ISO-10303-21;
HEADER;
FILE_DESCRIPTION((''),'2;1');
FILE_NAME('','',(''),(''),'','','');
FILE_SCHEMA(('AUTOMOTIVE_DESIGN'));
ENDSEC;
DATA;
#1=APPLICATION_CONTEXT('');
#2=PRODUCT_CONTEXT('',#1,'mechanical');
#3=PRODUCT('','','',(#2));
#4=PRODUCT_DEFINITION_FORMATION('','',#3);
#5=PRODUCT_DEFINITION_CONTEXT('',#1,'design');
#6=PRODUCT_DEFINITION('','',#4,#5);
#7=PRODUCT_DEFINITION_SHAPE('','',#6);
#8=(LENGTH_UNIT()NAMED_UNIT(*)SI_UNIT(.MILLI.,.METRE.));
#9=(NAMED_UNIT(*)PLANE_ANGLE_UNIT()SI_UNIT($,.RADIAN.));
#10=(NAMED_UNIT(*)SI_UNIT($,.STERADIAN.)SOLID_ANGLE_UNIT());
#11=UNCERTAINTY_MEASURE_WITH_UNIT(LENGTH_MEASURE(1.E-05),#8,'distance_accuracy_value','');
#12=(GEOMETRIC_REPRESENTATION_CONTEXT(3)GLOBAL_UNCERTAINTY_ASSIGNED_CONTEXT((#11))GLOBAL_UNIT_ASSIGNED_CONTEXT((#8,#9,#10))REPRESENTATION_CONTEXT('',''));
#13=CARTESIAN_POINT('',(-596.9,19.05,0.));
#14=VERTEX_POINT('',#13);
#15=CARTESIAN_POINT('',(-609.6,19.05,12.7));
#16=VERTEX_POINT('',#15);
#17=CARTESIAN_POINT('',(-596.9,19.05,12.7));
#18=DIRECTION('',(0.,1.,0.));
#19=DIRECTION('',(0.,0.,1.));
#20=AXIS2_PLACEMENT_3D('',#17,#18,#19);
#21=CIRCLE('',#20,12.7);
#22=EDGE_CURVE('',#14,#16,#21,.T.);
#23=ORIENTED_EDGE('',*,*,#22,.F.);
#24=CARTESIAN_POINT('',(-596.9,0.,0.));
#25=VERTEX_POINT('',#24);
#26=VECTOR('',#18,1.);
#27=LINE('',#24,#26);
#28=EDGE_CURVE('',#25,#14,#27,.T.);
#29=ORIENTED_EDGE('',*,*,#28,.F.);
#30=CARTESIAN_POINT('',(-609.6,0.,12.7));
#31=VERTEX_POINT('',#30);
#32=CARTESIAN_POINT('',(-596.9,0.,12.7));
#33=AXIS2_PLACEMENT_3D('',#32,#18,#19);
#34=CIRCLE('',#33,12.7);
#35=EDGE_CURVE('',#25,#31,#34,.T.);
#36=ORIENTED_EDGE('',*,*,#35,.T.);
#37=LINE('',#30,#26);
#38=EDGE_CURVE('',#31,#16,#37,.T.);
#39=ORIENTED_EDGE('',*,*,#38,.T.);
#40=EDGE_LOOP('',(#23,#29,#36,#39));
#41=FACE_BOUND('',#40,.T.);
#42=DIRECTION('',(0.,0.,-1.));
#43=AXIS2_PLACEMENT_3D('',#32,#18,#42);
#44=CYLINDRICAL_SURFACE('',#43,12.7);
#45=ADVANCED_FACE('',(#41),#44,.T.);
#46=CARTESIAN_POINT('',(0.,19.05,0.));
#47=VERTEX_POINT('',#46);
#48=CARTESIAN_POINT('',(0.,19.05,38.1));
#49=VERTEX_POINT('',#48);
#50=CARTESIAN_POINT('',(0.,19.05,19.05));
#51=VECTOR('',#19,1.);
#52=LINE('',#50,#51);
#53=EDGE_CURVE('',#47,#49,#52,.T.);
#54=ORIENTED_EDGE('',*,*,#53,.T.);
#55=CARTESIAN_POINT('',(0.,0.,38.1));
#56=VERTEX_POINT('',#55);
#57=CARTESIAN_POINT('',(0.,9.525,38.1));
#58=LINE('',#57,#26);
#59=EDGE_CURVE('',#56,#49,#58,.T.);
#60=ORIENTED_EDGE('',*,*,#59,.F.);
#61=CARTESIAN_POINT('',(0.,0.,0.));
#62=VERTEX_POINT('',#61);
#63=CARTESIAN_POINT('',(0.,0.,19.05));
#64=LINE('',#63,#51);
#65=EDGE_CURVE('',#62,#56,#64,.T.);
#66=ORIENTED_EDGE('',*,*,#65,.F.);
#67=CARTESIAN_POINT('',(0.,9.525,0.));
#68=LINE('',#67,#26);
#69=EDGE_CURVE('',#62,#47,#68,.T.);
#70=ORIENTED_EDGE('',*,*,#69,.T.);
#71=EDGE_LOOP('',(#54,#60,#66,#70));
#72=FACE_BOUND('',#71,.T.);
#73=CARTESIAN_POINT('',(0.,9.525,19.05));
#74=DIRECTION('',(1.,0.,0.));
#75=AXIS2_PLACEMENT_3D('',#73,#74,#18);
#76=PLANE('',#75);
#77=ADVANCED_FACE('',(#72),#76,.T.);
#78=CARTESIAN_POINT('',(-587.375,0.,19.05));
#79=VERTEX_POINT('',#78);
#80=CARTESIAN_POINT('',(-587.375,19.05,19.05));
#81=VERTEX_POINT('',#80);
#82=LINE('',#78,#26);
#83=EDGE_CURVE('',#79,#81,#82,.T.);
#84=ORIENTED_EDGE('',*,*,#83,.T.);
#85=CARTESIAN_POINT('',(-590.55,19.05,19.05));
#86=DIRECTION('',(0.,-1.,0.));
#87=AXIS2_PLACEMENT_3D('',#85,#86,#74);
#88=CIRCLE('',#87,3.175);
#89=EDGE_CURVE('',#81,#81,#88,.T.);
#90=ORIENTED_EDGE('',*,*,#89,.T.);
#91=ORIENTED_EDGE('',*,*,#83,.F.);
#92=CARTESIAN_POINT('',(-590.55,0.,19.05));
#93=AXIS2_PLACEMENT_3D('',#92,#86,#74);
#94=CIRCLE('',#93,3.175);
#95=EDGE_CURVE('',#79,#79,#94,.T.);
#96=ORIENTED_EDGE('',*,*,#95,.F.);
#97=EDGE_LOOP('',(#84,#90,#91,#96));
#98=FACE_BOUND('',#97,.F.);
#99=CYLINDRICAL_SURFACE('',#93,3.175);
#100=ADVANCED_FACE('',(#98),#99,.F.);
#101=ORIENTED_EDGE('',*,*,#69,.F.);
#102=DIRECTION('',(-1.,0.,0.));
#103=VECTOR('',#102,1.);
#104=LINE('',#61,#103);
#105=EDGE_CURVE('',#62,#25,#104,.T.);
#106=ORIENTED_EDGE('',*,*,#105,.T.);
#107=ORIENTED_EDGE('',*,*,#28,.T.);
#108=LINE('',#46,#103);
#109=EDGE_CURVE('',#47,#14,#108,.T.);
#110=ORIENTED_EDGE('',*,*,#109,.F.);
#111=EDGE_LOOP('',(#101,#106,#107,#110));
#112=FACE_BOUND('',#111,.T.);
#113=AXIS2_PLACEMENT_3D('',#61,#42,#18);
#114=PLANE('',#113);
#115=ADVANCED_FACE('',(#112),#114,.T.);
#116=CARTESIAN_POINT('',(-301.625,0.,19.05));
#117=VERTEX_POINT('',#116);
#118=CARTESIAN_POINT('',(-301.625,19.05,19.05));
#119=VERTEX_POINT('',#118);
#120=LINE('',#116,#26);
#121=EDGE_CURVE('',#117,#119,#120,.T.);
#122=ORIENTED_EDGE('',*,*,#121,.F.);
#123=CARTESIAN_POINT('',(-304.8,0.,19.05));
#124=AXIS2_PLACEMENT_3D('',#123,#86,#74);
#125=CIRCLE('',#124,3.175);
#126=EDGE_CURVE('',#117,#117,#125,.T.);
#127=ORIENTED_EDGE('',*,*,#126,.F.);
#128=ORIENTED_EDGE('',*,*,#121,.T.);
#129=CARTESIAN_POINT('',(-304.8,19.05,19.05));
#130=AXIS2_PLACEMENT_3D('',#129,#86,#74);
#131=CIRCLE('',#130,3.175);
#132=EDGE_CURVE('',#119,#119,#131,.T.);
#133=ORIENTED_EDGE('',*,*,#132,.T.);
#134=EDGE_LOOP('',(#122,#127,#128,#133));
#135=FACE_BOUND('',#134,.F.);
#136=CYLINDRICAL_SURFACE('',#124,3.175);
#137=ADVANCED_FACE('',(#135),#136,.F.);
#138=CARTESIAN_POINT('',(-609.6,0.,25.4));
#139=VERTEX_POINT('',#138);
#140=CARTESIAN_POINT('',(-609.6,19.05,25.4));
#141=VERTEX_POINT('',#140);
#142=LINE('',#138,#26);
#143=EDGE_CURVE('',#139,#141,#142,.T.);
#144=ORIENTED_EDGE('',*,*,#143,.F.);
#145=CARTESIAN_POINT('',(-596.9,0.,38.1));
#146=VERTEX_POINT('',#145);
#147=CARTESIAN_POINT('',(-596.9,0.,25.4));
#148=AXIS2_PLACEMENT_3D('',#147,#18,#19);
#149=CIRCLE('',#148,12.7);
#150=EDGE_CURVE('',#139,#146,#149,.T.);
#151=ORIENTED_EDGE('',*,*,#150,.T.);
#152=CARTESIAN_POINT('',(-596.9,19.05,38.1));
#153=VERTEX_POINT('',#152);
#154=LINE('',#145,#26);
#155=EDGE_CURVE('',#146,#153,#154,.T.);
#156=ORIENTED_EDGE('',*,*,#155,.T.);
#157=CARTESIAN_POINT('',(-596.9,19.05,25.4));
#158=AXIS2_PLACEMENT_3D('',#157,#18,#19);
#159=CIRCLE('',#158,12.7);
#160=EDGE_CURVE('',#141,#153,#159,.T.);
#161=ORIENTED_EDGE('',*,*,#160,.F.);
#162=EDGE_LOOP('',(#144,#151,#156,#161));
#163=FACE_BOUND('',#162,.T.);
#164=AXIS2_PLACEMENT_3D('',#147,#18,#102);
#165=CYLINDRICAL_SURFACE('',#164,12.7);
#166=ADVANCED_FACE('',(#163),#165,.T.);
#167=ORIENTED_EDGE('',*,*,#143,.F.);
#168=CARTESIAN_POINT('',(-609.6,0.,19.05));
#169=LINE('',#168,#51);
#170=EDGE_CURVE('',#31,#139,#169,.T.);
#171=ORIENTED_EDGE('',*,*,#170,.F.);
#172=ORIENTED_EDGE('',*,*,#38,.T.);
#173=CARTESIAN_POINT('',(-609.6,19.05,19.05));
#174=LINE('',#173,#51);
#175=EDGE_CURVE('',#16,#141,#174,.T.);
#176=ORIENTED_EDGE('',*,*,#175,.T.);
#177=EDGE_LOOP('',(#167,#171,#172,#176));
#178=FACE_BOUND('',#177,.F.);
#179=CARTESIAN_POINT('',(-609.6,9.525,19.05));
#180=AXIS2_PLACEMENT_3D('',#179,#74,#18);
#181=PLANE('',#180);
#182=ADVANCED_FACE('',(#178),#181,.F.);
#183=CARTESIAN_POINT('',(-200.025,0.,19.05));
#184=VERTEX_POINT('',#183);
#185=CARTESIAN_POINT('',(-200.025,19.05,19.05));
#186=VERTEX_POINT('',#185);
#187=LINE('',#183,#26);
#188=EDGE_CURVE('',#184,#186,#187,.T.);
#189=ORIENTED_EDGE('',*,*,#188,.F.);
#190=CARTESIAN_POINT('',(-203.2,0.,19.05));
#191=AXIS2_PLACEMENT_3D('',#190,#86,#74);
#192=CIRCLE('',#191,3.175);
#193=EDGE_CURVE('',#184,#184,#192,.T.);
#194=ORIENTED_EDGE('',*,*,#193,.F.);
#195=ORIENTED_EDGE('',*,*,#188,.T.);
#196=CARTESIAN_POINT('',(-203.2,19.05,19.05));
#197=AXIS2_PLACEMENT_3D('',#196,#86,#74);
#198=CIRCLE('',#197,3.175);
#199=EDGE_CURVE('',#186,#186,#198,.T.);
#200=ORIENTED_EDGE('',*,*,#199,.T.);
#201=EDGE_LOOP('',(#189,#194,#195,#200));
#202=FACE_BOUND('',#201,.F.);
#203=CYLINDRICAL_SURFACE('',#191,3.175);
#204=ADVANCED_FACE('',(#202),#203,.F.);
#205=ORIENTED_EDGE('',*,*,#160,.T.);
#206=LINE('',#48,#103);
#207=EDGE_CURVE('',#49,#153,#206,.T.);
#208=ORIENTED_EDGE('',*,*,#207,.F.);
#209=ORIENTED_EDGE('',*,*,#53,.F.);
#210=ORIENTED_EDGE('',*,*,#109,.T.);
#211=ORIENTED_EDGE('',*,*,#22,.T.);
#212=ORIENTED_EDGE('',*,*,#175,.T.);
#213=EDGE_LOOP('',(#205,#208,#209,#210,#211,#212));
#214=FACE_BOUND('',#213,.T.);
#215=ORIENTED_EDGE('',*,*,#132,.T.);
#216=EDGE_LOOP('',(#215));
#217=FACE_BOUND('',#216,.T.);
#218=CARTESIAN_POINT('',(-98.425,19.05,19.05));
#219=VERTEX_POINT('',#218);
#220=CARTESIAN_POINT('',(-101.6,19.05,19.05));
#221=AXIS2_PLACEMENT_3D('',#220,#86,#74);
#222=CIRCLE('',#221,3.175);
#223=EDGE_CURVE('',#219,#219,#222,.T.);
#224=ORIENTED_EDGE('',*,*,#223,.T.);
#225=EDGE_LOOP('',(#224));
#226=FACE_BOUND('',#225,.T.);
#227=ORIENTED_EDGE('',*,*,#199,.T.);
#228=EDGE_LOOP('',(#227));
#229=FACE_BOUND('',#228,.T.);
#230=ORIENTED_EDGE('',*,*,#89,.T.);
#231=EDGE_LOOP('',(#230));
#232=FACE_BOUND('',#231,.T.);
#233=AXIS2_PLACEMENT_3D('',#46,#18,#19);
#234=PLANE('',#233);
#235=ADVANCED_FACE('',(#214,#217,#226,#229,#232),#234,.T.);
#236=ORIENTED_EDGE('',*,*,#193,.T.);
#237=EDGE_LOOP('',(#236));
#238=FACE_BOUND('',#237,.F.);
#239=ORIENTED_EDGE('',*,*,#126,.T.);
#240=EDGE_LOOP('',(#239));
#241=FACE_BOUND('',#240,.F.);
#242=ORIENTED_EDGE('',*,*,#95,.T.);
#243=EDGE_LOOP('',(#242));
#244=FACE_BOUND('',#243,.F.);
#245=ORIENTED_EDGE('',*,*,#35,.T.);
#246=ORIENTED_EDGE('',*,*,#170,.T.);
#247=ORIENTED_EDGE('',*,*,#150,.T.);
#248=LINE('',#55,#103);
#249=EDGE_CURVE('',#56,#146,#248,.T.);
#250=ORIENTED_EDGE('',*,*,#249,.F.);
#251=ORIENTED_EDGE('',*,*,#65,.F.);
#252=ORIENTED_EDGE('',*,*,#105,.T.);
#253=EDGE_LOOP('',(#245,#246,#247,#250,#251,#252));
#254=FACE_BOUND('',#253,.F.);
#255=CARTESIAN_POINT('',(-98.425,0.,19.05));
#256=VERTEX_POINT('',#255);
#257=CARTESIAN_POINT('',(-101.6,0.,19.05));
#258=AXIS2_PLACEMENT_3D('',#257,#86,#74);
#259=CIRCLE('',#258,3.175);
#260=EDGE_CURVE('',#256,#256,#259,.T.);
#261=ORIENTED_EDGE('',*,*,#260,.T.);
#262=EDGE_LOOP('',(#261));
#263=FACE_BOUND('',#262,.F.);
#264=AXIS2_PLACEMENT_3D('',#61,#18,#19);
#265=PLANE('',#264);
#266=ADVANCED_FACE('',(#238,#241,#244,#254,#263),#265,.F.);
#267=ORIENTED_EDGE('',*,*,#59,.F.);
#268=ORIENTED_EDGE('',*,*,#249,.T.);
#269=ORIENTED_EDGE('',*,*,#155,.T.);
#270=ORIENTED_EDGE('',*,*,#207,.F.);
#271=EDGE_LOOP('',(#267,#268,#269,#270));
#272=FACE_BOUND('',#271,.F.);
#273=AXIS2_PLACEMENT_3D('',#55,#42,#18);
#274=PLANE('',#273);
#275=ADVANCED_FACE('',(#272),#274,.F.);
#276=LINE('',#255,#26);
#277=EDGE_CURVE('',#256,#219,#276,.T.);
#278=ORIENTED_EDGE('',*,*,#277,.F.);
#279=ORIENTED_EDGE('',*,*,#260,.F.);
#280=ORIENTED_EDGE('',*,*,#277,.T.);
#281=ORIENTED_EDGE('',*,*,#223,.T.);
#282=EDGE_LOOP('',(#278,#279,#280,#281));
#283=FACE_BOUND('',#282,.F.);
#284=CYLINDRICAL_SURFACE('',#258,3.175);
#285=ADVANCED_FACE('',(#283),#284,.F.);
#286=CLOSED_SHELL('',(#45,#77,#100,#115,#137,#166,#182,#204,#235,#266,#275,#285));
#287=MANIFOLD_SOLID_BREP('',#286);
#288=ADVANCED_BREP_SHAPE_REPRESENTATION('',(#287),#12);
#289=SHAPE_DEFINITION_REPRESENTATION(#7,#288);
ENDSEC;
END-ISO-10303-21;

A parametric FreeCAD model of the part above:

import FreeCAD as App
import Part
import Sketcher

V = App.Vector
Q = App.Units.Quantity


def edges_at(feature, points):
    """Names of the edges that pass closest to the given points."""
    edges = feature.Shape.Edges
    near = lambda p: min(range(len(edges)), key=lambda i: edges[i].distToShape(Part.Vertex(*p))[0])
    return sorted({f"Edge{near(p) + 1}" for p in points})

doc = App.newDocument("Part")
params = doc.addObject("Spreadsheet::Sheet", "Params")
for row, (alias, value) in enumerate([
    ("sketch1_height", "1.5 in"),
    ("sketch1_width", "0.75 in"),
    ("pad1_length", "24 in"),
    ("sketch2_diameter", "0.25 in"),
    ("fillet_radius", "0.5 in"),
], start=1):
    params.set(f"A{row}", alias)
    params.set(f"B{row}", "=" + value)
    params.setAlias(f"B{row}", alias)

body = doc.addObject("PartDesign::Body", "Body")

# Sketch on YZ plane
sketch1 = body.newObject("Sketcher::SketchObject", "Sketch")
sketch1.AttachmentSupport = (doc.getObject("YZ_Plane"), [""])
sketch1.MapMode = "FlatFace"
sketch1.addGeometry(Part.LineSegment(V(0, 38, 0), V(0, 0, 0)), False)
sketch1.addGeometry(Part.LineSegment(V(0, 0, 0), V(19, 0, 0)), False)
sketch1.addGeometry(Part.LineSegment(V(19, 0, 0), V(19, 38, 0)), False)
sketch1.addGeometry(Part.LineSegment(V(19, 38, 0), V(0, 38, 0)), False)
sketch1.addConstraint(Sketcher.Constraint("Coincident", 0, 2, 1, 1))
sketch1.addConstraint(Sketcher.Constraint("Coincident", 1, 2, 2, 1))
sketch1.addConstraint(Sketcher.Constraint("Coincident", 2, 2, 3, 1))
sketch1.addConstraint(Sketcher.Constraint("Coincident", 3, 2, 0, 1))
sketch1.addConstraint(Sketcher.Constraint("Vertical", 0))
sketch1.addConstraint(Sketcher.Constraint("Horizontal", 1))
sketch1.addConstraint(Sketcher.Constraint("Vertical", 2))
sketch1.addConstraint(Sketcher.Constraint("Horizontal", 3))
sketch1.addConstraint(Sketcher.Constraint("Coincident", 0, 2, -1, 1))
sketch1.addConstraint(Sketcher.Constraint("DistanceY", 0, 2, 0, 1, Q("1.5 in")))
sketch1.addConstraint(Sketcher.Constraint("DistanceX", 1, 1, 1, 2, Q("0.75 in")))
sketch1.setExpression("Constraints[9]", "Params.sketch1_height")
sketch1.setExpression("Constraints[10]", "Params.sketch1_width")
pad1 = body.newObject("PartDesign::Pad", "Pad")
pad1.Profile = sketch1
pad1.setExpression("Length", "Params.pad1_length")
pad1.Reversed = True

# Sketch on XZ plane
sketch2 = body.newObject("Sketcher::SketchObject", "Sketch001")
sketch2.AttachmentSupport = (doc.getObject("XZ_Plane"), [""])
sketch2.MapMode = "FlatFace"
sketch2.addGeometry(Part.Circle(V(-101.6, 19.1, 0), V(0, 0, 1), 3.2), False)
sketch2.addGeometry(Part.Circle(V(-203.2, 19.1, 0), V(0, 0, 1), 3.2), False)
sketch2.addGeometry(Part.Circle(V(-304.8, 19.1, 0), V(0, 0, 1), 3.2), False)
sketch2.addGeometry(Part.Circle(V(-590.5, 19.1, 0), V(0, 0, 1), 3.2), False)
sketch2.addConstraint(Sketcher.Constraint("Equal", 0, 1))
sketch2.addConstraint(Sketcher.Constraint("Equal", 1, 2))
sketch2.addConstraint(Sketcher.Constraint("Equal", 2, 3))
sketch2.addConstraint(Sketcher.Constraint("Horizontal", 0, 3, 1, 3))
sketch2.addConstraint(Sketcher.Constraint("Horizontal", 1, 3, 2, 3))
sketch2.addConstraint(Sketcher.Constraint("Horizontal", 2, 3, 3, 3))
sketch2.addConstraint(Sketcher.Constraint("Diameter", 0, Q("0.25 in")))
sketch2.addConstraint(Sketcher.Constraint("DistanceX", 0, 3, -1, 1, Q("4 in")))
sketch2.addConstraint(Sketcher.Constraint("DistanceX", 1, 3, -1, 1, Q("8 in")))
sketch2.addConstraint(Sketcher.Constraint("DistanceX", 2, 3, -1, 1, Q("12 in")))
sketch2.addConstraint(Sketcher.Constraint("DistanceY", -1, 1, 0, 3, Q("0.75 in")))
sketch2.addConstraint(Sketcher.Constraint("DistanceX", 3, 3, -1, 1, Q("23.25 in")))
sketch2.setExpression("Constraints[6]", "Params.sketch2_diameter")
pocket1 = body.newObject("PartDesign::Pocket", "Pocket")
pocket1.Profile = sketch2
pocket1.Type = "ThroughAll"
doc.recompute()

fillet = body.newObject("PartDesign::Fillet", "Fillet")
fillet.Base = (pocket1, edges_at(pocket1, [(-609.6, 9.525, 38.1), (-609.6, 9.525, 0)]))
fillet.setExpression("Radius", "Params.fillet_radius")

doc.recompute()
